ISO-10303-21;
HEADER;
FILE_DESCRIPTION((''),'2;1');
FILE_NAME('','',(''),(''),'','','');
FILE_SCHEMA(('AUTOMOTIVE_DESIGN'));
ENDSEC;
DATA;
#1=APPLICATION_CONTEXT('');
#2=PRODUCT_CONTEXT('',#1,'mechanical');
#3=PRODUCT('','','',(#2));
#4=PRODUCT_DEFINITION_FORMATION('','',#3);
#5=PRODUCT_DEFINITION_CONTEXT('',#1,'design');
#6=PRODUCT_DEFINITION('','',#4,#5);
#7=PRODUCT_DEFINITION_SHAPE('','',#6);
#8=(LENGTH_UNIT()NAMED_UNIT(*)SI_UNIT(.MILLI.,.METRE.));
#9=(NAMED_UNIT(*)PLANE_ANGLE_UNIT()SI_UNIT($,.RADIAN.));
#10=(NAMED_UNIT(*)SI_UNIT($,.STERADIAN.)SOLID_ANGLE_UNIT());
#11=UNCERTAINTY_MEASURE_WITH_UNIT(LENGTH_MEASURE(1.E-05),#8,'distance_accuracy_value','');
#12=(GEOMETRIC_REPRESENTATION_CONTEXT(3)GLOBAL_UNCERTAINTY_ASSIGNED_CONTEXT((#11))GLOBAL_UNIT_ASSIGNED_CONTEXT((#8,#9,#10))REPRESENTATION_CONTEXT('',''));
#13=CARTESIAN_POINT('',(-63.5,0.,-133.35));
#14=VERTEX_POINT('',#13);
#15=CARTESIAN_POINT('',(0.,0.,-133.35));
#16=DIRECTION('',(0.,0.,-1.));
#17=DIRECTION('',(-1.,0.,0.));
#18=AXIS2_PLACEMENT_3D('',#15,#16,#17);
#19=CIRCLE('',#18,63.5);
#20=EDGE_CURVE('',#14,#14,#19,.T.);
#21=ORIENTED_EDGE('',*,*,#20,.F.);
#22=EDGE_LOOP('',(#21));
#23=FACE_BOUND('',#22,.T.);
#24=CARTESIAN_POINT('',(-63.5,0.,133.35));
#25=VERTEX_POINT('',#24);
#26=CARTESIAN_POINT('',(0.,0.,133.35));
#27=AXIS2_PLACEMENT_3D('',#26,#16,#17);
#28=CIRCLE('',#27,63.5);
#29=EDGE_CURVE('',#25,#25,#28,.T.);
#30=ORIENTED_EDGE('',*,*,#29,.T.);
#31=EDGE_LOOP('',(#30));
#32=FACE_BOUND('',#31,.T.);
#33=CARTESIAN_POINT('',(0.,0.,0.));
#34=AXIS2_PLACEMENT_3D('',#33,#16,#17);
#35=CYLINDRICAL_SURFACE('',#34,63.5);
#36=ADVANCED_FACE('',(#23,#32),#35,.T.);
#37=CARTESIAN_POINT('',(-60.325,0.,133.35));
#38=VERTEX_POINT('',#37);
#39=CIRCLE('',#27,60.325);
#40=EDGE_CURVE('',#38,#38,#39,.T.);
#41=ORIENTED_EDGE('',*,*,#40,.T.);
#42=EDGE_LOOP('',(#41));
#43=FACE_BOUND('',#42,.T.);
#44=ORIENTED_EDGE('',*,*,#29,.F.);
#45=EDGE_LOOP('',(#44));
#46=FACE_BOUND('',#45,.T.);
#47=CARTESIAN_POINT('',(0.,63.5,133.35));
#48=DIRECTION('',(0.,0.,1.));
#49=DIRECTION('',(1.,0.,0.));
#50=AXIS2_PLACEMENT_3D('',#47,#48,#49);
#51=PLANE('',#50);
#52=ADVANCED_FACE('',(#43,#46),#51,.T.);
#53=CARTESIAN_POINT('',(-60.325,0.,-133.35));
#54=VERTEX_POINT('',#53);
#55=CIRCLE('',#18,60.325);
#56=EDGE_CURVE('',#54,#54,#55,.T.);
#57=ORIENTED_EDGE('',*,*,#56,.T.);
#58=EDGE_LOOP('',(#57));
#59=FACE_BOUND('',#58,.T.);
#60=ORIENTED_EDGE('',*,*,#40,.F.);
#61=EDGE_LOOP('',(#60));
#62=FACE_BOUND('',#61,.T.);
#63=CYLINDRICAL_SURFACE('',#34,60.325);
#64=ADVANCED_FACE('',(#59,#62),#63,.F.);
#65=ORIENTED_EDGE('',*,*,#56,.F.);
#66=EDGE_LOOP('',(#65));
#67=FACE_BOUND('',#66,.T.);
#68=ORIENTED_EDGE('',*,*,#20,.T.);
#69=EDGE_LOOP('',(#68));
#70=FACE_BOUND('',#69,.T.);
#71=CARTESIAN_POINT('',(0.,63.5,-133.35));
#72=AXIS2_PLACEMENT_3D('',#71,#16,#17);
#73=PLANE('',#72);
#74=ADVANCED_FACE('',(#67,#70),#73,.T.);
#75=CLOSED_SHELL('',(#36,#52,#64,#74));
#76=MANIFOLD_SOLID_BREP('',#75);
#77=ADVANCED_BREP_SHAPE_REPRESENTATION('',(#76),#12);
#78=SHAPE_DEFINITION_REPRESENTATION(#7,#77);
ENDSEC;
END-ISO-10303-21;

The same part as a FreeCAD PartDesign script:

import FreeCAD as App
import Part
import Sketcher
Q = App.Units.Quantity

doc = App.newDocument("Part")
body = doc.addObject("PartDesign::Body", "Body")

# Sketch on YZ plane
sketch1 = body.newObject("Sketcher::SketchObject", "Sketch")
sketch1.AttachmentSupport = (doc.getObject("YZ_Plane"), [""])
sketch1.MapMode = "FlatFace"
sketch1.addGeometry([
    Part.LineSegment(App.Vector(63.5, -133.3, 0), App.Vector(63.5, 133.3, 0)),
    Part.LineSegment(App.Vector(63.5, 133.3, 0), App.Vector(60.3, 133.3, 0)),
    Part.LineSegment(App.Vector(60.3, 133.3, 0), App.Vector(60.3, -133.3, 0)),
    Part.LineSegment(App.Vector(60.3, -133.3, 0), App.Vector(63.5, -133.3, 0)),
], False)
sketch1.addConstraint([
    Sketcher.Constraint("Coincident", 0, 2, 1, 1),
    Sketcher.Constraint("Coincident", 1, 2, 2, 1),
    Sketcher.Constraint("Coincident", 2, 2, 3, 1),
    Sketcher.Constraint("Coincident", 3, 2, 0, 1),
    Sketcher.Constraint("Vertical", 0),
    Sketcher.Constraint("Horizontal", 1),
    Sketcher.Constraint("Vertical", 2),
    Sketcher.Constraint("Horizontal", 3),
    Sketcher.Constraint("DistanceY", 0, 1, 0, 2, Q("10.5 in")),
    Sketcher.Constraint("DistanceX", -1, 1, 0, 2, Q("2.5 in")),
    Sketcher.Constraint("DistanceX", 1, 2, 1, 1, Q("0.125 in")),
    Sketcher.Constraint("DistanceY", -1, 1, 0, 2, Q("5.25 in")),
])
revolution = body.newObject("PartDesign::Revolution", "Revolution")
revolution.Profile = sketch1
revolution.ReferenceAxis = (sketch1, ["V_Axis"])
revolution.Angle = 360

doc.recompute()
